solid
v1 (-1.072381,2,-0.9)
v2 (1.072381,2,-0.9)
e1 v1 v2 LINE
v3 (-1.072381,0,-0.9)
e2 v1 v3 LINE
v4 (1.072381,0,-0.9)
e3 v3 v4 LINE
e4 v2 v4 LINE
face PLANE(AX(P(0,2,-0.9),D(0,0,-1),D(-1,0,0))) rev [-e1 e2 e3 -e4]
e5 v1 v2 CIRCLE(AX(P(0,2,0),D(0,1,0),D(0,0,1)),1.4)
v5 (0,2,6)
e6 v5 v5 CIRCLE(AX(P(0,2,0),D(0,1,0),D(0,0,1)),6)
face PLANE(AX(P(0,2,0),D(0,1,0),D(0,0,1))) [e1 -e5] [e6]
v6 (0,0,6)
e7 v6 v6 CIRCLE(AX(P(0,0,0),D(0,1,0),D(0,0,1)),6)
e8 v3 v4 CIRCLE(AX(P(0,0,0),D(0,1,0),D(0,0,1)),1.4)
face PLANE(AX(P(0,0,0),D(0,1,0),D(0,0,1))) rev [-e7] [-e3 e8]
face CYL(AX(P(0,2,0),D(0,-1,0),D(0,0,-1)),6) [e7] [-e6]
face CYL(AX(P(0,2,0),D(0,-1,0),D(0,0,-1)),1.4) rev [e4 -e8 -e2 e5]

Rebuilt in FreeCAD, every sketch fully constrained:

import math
import FreeCAD as App
import Part
import Sketcher

doc = App.newDocument("Part")
body = doc.addObject("PartDesign::Body", "Body")

# Sketch on XZ plane
sketch1 = body.newObject("Sketcher::SketchObject", "Sketch")
sketch1.AttachmentSupport = (doc.getObject("XZ_Plane"), [""])
sketch1.MapMode = "FlatFace"
sketch1.addGeometry([
    Part.Circle(App.Vector(0, 0, 0), App.Vector(0, 0, 1), 6),
    Part.ArcOfCircle(Part.Circle(App.Vector(0, 0, 0), App.Vector(0, 0, 1), 1.4), math.radians(-40), math.radians(220)),
    Part.LineSegment(App.Vector(-1.1, -0.9, 0), App.Vector(1.1, -0.9, 0)),
], False)
sketch1.addConstraint([
    Sketcher.Constraint("Coincident", 1, 1, 2, 2),
    Sketcher.Constraint("Coincident", 2, 1, 1, 2),
    Sketcher.Constraint("Horizontal", 2),
    Sketcher.Constraint("Coincident", 0, 3, -1, 1),
    Sketcher.Constraint("Coincident", 1, 3, -1, 1),
    Sketcher.Constraint("Diameter", 0, 12.0),
    Sketcher.Constraint("Radius", 1, 1.4),
    Sketcher.Constraint("DistanceY", 1, 1, -1, 1, 0.9),
])
pad1 = body.newObject("PartDesign::Pad", "Pad")
pad1.Profile = sketch1
pad1.Length = 2
pad1.Reversed = True

doc.recompute()
